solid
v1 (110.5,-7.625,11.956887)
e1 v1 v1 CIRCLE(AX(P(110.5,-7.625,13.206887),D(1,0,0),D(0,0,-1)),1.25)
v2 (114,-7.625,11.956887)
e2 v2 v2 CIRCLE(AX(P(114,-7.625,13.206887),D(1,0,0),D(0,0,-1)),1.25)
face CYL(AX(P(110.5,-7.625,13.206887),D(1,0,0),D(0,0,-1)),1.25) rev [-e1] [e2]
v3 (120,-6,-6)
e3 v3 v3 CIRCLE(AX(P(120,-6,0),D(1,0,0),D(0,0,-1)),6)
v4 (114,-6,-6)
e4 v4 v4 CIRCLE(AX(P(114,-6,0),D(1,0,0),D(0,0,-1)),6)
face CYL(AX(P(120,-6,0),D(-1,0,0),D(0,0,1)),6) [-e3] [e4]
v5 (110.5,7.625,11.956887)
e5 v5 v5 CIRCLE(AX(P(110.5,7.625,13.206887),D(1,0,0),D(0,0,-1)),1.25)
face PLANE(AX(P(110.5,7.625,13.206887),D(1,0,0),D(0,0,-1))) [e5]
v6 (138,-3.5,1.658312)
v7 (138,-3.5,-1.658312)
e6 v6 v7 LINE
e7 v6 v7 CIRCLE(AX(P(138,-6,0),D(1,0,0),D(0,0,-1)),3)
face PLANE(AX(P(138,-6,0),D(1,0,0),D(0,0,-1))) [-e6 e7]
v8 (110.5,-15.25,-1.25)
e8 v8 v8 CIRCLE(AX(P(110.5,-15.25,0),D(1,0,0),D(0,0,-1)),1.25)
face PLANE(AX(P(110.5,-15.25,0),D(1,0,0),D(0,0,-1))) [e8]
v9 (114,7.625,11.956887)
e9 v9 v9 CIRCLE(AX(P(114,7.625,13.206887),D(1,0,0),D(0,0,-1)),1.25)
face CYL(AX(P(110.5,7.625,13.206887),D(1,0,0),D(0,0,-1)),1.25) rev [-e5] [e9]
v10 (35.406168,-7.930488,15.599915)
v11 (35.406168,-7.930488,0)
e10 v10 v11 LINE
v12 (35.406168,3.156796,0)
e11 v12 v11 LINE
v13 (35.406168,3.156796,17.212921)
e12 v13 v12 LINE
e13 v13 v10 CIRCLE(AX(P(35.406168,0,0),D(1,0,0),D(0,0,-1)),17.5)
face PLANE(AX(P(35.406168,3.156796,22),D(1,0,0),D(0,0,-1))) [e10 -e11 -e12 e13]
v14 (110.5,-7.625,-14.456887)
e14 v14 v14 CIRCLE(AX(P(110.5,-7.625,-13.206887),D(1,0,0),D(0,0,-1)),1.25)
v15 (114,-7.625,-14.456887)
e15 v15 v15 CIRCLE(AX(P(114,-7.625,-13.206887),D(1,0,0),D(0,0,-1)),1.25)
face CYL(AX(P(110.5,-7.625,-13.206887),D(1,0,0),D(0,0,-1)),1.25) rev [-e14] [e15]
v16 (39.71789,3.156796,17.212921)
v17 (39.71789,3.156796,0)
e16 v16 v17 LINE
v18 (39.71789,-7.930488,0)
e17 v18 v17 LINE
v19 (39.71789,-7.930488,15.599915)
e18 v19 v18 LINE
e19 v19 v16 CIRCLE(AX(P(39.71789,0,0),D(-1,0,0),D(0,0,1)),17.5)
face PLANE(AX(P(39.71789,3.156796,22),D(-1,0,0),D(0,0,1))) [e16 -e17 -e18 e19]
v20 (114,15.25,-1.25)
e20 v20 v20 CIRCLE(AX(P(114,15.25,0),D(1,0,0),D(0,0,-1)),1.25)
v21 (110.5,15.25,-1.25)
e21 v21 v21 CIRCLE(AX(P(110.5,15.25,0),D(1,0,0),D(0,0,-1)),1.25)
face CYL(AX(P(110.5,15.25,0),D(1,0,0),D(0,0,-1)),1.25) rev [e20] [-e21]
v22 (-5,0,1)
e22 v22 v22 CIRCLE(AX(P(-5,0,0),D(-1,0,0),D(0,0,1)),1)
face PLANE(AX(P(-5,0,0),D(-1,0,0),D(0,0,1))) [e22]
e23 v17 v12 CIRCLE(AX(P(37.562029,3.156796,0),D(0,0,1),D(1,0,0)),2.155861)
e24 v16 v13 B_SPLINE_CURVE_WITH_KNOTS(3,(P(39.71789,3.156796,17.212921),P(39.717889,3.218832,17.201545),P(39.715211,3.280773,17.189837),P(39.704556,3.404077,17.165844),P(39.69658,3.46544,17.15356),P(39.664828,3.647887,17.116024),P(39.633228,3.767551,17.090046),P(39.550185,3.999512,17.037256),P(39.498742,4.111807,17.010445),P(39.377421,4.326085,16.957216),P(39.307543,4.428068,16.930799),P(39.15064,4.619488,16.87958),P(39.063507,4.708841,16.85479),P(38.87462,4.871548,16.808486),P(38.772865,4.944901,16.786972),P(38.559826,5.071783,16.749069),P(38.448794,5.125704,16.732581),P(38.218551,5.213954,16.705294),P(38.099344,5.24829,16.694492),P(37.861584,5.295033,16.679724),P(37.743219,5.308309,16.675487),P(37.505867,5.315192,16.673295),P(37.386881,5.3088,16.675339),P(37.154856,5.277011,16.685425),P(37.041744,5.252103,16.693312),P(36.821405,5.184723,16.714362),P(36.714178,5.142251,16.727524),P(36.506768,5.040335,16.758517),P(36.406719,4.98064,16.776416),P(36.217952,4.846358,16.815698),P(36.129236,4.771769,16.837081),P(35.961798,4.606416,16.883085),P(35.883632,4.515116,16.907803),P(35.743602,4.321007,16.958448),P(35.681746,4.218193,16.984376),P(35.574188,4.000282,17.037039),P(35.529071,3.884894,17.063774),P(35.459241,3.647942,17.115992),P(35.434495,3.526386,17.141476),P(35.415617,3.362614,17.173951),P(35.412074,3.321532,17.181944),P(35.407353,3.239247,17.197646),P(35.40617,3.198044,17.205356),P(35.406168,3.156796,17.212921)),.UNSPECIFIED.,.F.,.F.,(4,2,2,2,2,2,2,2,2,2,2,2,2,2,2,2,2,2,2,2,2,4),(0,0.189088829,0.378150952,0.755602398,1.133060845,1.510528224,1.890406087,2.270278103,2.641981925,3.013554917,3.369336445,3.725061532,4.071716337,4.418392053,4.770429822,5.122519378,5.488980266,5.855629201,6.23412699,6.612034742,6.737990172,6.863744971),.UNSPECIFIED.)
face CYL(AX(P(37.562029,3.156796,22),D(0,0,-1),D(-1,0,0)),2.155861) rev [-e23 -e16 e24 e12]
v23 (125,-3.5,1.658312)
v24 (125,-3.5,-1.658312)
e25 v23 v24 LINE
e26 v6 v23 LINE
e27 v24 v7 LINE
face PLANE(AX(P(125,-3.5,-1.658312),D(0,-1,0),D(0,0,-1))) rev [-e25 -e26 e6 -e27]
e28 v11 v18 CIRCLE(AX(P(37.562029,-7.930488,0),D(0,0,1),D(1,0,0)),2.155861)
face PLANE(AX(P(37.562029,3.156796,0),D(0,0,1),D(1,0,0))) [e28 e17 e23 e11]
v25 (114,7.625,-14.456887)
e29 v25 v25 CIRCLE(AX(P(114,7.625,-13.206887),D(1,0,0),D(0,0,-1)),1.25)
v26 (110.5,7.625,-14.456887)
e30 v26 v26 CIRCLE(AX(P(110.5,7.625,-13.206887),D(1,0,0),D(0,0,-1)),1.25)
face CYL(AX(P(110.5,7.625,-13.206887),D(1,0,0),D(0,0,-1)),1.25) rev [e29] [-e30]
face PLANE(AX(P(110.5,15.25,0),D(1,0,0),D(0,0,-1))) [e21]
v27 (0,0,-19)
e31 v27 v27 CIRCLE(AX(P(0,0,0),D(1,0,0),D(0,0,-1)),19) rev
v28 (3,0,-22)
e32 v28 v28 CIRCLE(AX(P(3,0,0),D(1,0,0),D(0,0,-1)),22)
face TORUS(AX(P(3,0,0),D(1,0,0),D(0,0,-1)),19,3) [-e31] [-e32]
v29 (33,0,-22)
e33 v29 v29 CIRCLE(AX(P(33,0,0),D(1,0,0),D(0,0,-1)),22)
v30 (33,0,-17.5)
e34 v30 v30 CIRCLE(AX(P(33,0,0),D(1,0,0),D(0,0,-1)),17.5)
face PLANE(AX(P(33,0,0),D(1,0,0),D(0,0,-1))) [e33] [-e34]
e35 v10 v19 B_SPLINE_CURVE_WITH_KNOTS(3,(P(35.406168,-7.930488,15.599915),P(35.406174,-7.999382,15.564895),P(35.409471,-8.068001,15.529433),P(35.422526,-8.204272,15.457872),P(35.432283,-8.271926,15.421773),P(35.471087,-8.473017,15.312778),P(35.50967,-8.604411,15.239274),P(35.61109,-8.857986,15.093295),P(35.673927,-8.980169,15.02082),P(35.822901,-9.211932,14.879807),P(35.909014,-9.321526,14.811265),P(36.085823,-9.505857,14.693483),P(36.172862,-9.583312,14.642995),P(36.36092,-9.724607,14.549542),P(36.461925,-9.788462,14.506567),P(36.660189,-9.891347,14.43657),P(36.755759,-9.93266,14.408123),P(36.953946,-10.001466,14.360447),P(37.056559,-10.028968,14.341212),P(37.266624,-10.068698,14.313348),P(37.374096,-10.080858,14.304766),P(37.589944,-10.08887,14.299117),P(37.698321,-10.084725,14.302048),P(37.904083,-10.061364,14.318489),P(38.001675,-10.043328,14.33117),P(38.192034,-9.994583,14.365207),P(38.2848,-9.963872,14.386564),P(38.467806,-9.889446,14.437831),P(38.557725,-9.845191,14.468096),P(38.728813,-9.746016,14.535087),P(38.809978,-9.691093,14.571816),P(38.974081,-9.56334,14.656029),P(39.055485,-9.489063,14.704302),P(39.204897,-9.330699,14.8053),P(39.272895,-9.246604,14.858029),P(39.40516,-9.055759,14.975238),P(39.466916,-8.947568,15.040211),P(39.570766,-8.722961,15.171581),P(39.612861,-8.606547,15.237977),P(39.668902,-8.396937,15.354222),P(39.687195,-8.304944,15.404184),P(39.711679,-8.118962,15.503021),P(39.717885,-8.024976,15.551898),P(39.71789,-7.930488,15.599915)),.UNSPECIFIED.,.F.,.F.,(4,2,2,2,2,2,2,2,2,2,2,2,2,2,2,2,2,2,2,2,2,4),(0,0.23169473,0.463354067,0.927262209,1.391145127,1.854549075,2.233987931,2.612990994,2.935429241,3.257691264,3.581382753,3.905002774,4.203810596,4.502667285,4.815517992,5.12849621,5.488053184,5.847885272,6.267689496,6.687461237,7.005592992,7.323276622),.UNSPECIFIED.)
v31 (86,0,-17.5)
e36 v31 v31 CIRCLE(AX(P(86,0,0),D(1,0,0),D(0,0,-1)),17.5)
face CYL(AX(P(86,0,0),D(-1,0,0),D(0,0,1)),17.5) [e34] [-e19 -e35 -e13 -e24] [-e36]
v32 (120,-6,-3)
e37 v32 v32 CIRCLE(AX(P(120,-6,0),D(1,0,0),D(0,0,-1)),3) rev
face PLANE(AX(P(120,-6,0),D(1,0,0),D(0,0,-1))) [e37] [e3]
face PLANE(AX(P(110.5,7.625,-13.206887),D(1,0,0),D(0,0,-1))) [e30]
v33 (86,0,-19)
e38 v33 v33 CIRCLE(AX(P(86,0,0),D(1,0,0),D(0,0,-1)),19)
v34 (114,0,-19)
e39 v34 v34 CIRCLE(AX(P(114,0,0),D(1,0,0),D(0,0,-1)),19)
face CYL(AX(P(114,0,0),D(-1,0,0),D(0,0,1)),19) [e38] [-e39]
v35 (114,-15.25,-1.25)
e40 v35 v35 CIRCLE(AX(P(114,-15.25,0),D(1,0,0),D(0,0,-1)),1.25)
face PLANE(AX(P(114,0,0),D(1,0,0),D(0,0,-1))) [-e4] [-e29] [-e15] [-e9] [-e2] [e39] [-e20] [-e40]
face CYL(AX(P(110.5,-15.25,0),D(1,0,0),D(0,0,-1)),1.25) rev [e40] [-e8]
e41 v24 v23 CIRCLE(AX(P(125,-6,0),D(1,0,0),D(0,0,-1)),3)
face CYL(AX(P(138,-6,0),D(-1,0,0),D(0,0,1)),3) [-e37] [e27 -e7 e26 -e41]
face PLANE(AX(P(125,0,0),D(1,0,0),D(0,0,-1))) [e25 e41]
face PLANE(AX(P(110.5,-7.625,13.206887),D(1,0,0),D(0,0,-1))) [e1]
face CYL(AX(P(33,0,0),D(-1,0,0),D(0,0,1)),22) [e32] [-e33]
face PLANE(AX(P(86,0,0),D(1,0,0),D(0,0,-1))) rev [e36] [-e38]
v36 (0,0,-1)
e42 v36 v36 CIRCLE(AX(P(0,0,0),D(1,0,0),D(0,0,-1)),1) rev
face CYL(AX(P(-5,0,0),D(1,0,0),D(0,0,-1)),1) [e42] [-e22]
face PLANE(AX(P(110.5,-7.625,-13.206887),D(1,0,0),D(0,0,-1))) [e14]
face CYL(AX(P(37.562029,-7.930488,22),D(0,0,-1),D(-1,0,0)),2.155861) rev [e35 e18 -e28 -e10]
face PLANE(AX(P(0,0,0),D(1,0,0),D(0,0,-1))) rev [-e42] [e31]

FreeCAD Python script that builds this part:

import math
import FreeCAD as App
import Part
import Sketcher


def edges_at(feature, points):
    """Names of the edges that pass closest to the given points."""
    edges = feature.Shape.Edges
    near = lambda p: min(range(len(edges)), key=lambda i: edges[i].distToShape(Part.Vertex(*p))[0])
    return sorted({f"Edge{near(p) + 1}" for p in points})


def add_polygon(sketch, points):
    """Adds a closed chain of lines whose ends are joined by coincident constraints."""
    first, n = sketch.GeometryCount, len(points)
    for a, b in zip(points, points[1:] + points[:1]):
        sketch.addGeometry(Part.LineSegment(App.Vector(*a, 0), App.Vector(*b, 0)), False)
    for i in range(n):
        sketch.addConstraint(Sketcher.Constraint("Coincident", first + i, 2, first + (i + 1) % n, 1))

doc = App.newDocument("Part")
body = doc.addObject("PartDesign::Body", "Body")

# Sketch on YZ plane
sketch1 = body.newObject("Sketcher::SketchObject", "Sketch")
sketch1.AttachmentSupport = (doc.getObject("YZ_Plane"), [""])
sketch1.MapMode = "FlatFace"
sketch1.addGeometry(Part.Circle(App.Vector(0, 0, 0), App.Vector(0, 0, 1), 22), False)
sketch1.addConstraint([
    Sketcher.Constraint("Coincident", 0, 3, -1, 1),
    Sketcher.Constraint("Diameter", 0, 44.0),
])
pad1 = body.newObject("PartDesign::Pad", "Pad")
pad1.Profile = sketch1
pad1.Length = 33

# Sketch on YZ plane
sketch2 = body.newObject("Sketcher::SketchObject", "Sketch001")
sketch2.AttachmentSupport = (doc.getObject("YZ_Plane"), [""])
sketch2.MapMode = "FlatFace"
sketch2.AttachmentOffset = App.Placement(App.Vector(0, 0, 33), App.Rotation())
sketch2.addGeometry(Part.Circle(App.Vector(0, 0, 0), App.Vector(0, 0, 1), 18), False)
sketch2.addConstraint([
    Sketcher.Constraint("Coincident", 0, 3, -1, 1),
    Sketcher.Constraint("Diameter", 0, 35.0),
])
pad2 = body.newObject("PartDesign::Pad", "Pad001")
pad2.Profile = sketch2
pad2.Length = 53

# Sketch on YZ plane
sketch3 = body.newObject("Sketcher::SketchObject", "Sketch002")
sketch3.AttachmentSupport = (doc.getObject("YZ_Plane"), [""])
sketch3.MapMode = "FlatFace"
sketch3.AttachmentOffset = App.Placement(App.Vector(0, 0, 86), App.Rotation())
sketch3.addGeometry(Part.Circle(App.Vector(0, 0, 0), App.Vector(0, 0, 1), 19), False)
sketch3.addConstraint([
    Sketcher.Constraint("Coincident", 0, 3, -1, 1),
    Sketcher.Constraint("Diameter", 0, 38.0),
])
pad3 = body.newObject("PartDesign::Pad", "Pad002")
pad3.Profile = sketch3
pad3.Length = 28

# Sketch on XY plane
sketch4 = body.newObject("Sketcher::SketchObject", "Sketch003")
sketch4.AttachmentSupport = (doc.getObject("XY_Plane"), [""])
sketch4.MapMode = "FlatFace"
sketch4.addGeometry([
    Part.LineSegment(App.Vector(39.7, -7.9, 0), App.Vector(39.7, 3.2, 0)),
    Part.ArcOfCircle(Part.Circle(App.Vector(37.6, 3.2, 0), App.Vector(0, 0, 1), 2.2), math.radians(0), math.radians(180)),
    Part.LineSegment(App.Vector(35.4, 3.2, 0), App.Vector(35.4, -7.9, 0)),
    Part.ArcOfCircle(Part.Circle(App.Vector(37.6, -7.9, 0), App.Vector(0, 0, 1), 2.2), math.radians(180), math.radians(360)),
], False)
sketch4.addConstraint([
    Sketcher.Constraint("Tangent", 0, 2, 1, 1),
    Sketcher.Constraint("Tangent", 1, 2, 2, 1),
    Sketcher.Constraint("Tangent", 2, 2, 3, 1),
    Sketcher.Constraint("Tangent", 3, 2, 0, 1),
    Sketcher.Constraint("Vertical", 0),
    Sketcher.Constraint("Vertical", 2),
    Sketcher.Constraint("Radius", 1, 2.155861),
    Sketcher.Constraint("DistanceY", 0, 1, 0, 2, 11.087284),
    Sketcher.Constraint("DistanceX", -1, 1, 1, 3, 37.562029),
    Sketcher.Constraint("DistanceY", 3, 3, -1, 1, 7.930488),
])
pocket1 = body.newObject("PartDesign::Pocket", "Pocket")
pocket1.Profile = sketch4
pocket1.Type = "ThroughAll"
pocket1.Reversed = True

# Sketch on YZ plane
sketch5 = body.newObject("Sketcher::SketchObject", "Sketch004")
sketch5.AttachmentSupport = (doc.getObject("YZ_Plane"), [""])
sketch5.MapMode = "FlatFace"
sketch5.AttachmentOffset = App.Placement(App.Vector(0, 0, 114), App.Rotation())
sketch5.addGeometry([
    Part.Circle(App.Vector(15.2, 0, 0), App.Vector(0, 0, 1), 1.2),  # 0
    Part.Circle(App.Vector(7.6, -13.2, 0), App.Vector(0, 0, 1), 1.2),  # 1
    Part.Circle(App.Vector(-7.6, -13.2, 0), App.Vector(0, 0, 1), 1.2),  # 2
    Part.Circle(App.Vector(-15.2, 0, 0), App.Vector(0, 0, 1), 1.2),  # 3
    Part.Circle(App.Vector(-7.6, 13.2, 0), App.Vector(0, 0, 1), 1.2),  # 4
    Part.Circle(App.Vector(7.6, 13.2, 0), App.Vector(0, 0, 1), 1.2),  # 5
], False)
sketch5.addConstraint([
    Sketcher.Constraint("Equal", 0, 1),
    Sketcher.Constraint("Equal", 1, 2),
    Sketcher.Constraint("Equal", 2, 3),
    Sketcher.Constraint("Equal", 3, 4),
    Sketcher.Constraint("Equal", 4, 5),
    Sketcher.Constraint("Symmetric", 0, 3, 3, 3, -1, 1),
    Sketcher.Constraint("Symmetric", 1, 3, 4, 3, -1, 1),
    Sketcher.Constraint("Symmetric", 2, 3, 5, 3, -1, 1),
    Sketcher.Constraint("Symmetric", 1, 3, 2, 3, -2),
    Sketcher.Constraint("PointOnObject", 0, 3, -1),
    Sketcher.Constraint("Diameter", 0, 2.5),
    Sketcher.Constraint("DistanceX", 3, 3, 0, 3, 30.5),
    Sketcher.Constraint("DistanceX", 2, 3, 1, 3, 15.25),
    Sketcher.Constraint("DistanceY", 1, 3, -1, 1, 13.206887),
])
pocket2 = body.newObject("PartDesign::Pocket", "Pocket001")
pocket2.Profile = sketch5
pocket2.Length = 3.5

# Sketch on YZ plane
sketch6 = body.newObject("Sketcher::SketchObject", "Sketch005")
sketch6.AttachmentSupport = (doc.getObject("YZ_Plane"), [""])
sketch6.MapMode = "FlatFace"
sketch6.AttachmentOffset = App.Placement(App.Vector(0, 0, 114), App.Rotation())
sketch6.addGeometry(Part.Circle(App.Vector(-6, 0, 0), App.Vector(0, 0, 1), 6), False)
sketch6.addConstraint([
    Sketcher.Constraint("PointOnObject", 0, 3, -1),
    Sketcher.Constraint("Diameter", 0, 12.0),
    Sketcher.Constraint("DistanceX", 0, 3, -1, 1, 6.0),
])
pad4 = body.newObject("PartDesign::Pad", "Pad003")
pad4.Profile = sketch6
pad4.Length = 6

# Sketch on YZ plane
sketch7 = body.newObject("Sketcher::SketchObject", "Sketch006")
sketch7.AttachmentSupport = (doc.getObject("YZ_Plane"), [""])
sketch7.MapMode = "FlatFace"
sketch7.AttachmentOffset = App.Placement(App.Vector(0, 0, 114), App.Rotation())
sketch7.addGeometry(Part.Circle(App.Vector(-6, 0, 0), App.Vector(0, 0, 1), 3), False)
sketch7.addConstraint([
    Sketcher.Constraint("PointOnObject", 0, 3, -1),
    Sketcher.Constraint("Diameter", 0, 6.0),
    Sketcher.Constraint("DistanceX", 0, 3, -1, 1, 6.0),
])
pad5 = body.newObject("PartDesign::Pad", "Pad004")
pad5.Profile = sketch7
pad5.Length = 24

# Sketch on YZ plane
sketch8 = body.newObject("Sketcher::SketchObject", "Sketch007")
sketch8.AttachmentSupport = (doc.getObject("YZ_Plane"), [""])
sketch8.MapMode = "FlatFace"
sketch8.AttachmentOffset = App.Placement(App.Vector(0, 0, 138), App.Rotation())
add_polygon(sketch8, [(-3.5, -3), (-1.5, -3), (-1.5, 2.2), (-3.5, 2.2)])  # lines 0-3
sketch8.addConstraint([
    Sketcher.Constraint("Horizontal", 0),
    Sketcher.Constraint("Vertical", 1),
    Sketcher.Constraint("Horizontal", 2),
    Sketcher.Constraint("Vertical", 3),
    Sketcher.Constraint("DistanceY", 0, 2, -1, 1, 3.0),
    Sketcher.Constraint("DistanceX", 2, 2, -1, 1, 3.5),
    Sketcher.Constraint("DistanceX", 0, 1, 0, 2, 1.96439),
    Sketcher.Constraint("DistanceY", 1, 1, 1, 2, 5.178416),
])
pocket3 = body.newObject("PartDesign::Pocket", "Pocket002")
pocket3.Profile = sketch8
pocket3.Length = 13
doc.recompute()

fillet = body.newObject("PartDesign::Fillet", "Fillet")
fillet.Base = (pocket3, edges_at(pocket3, [(0, 0, 22)]))
fillet.Radius = 3

# Sketch on YZ plane
sketch9 = body.newObject("Sketcher::SketchObject", "Sketch008")
sketch9.AttachmentSupport = (doc.getObject("YZ_Plane"), [""])
sketch9.MapMode = "FlatFace"
sketch9.addGeometry(Part.Circle(App.Vector(0, 0, 0), App.Vector(0, 0, 1), 1), False)
sketch9.addConstraint([
    Sketcher.Constraint("Coincident", 0, 3, -1, 1),
    Sketcher.Constraint("Diameter", 0, 2.0),
])
pad6 = body.newObject("PartDesign::Pad", "Pad005")
pad6.Profile = sketch9
pad6.Length = 5
pad6.Reversed = True

doc.recompute()
